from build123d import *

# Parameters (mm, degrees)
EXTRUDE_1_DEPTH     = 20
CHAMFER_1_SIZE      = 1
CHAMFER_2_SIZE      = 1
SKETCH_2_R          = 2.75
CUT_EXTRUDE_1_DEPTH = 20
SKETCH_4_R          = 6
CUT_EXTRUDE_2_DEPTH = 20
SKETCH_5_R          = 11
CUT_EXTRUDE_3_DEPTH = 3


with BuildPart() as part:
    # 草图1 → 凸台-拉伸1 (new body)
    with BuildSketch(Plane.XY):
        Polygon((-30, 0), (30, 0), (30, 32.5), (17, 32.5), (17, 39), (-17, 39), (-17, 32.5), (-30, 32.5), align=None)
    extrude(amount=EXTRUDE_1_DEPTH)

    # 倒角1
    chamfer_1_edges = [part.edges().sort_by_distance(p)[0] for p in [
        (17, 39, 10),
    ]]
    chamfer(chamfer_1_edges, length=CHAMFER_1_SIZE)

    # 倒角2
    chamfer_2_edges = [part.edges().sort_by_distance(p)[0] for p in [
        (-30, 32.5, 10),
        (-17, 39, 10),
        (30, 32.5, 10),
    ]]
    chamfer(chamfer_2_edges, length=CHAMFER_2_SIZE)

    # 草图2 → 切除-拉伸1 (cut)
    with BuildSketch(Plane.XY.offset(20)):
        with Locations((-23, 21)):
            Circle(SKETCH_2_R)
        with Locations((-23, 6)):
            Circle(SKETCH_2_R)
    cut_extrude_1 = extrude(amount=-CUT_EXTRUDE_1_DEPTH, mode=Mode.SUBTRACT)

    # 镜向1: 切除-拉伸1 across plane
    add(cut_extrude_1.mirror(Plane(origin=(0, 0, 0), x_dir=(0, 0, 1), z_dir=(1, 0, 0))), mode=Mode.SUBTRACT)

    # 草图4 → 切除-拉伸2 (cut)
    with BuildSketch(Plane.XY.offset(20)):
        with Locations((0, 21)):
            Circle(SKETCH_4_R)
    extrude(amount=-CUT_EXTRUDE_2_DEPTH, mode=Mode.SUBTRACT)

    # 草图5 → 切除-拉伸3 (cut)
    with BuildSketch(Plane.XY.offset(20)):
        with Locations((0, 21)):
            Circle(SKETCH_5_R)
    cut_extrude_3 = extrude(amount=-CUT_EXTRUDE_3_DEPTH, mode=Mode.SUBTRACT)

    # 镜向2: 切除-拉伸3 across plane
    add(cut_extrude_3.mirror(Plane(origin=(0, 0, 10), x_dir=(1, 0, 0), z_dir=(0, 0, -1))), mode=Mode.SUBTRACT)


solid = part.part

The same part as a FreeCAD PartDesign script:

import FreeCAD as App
import Part
import Sketcher
from FreeCAD import Vector


def edges_at(feature, points):
    """Names of the edges that pass closest to the given points."""
    edges = feature.Shape.Edges
    near = lambda p: min(range(len(edges)), key=lambda i: edges[i].distToShape(Part.Vertex(*p))[0])
    return sorted({f"Edge{near(p) + 1}" for p in points})

doc = App.newDocument("Part")
body = doc.addObject("PartDesign::Body", "Body")

sketch1 = doc.addObject("Sketcher::SketchObject", "Sketch")
body.addObject(sketch1)
sketch1.AttachmentSupport = (doc.XY_Plane, [""])
sketch1.MapMode = "FlatFace"
sketch1.addGeometry([
    Part.LineSegment(Vector(-30, 0, 0), Vector(30, 0, 0)),
    Part.LineSegment(Vector(30, 0, 0), Vector(30, 32.5, 0)),
    Part.LineSegment(Vector(30, 32.5, 0), Vector(17, 32.5, 0)),
    Part.LineSegment(Vector(17, 32.5, 0), Vector(17, 39, 0)),
    Part.LineSegment(Vector(17, 39, 0), Vector(-17, 39, 0)),
    Part.LineSegment(Vector(-17, 39, 0), Vector(-17, 32.5, 0)),
    Part.LineSegment(Vector(-17, 32.5, 0), Vector(-30, 32.5, 0)),
    Part.LineSegment(Vector(-30, 32.5, 0), Vector(-30, 0, 0)),
], False)
sketch1.addConstraint([
    Sketcher.Constraint("Coincident", 0, 2, 1, 1),
    Sketcher.Constraint("Coincident", 1, 2, 2, 1),
    Sketcher.Constraint("Coincident", 2, 2, 3, 1),
    Sketcher.Constraint("Coincident", 3, 2, 4, 1),
    Sketcher.Constraint("Coincident", 4, 2, 5, 1),
    Sketcher.Constraint("Coincident", 5, 2, 6, 1),
    Sketcher.Constraint("Coincident", 6, 2, 7, 1),
    Sketcher.Constraint("Coincident", 7, 2, 0, 1),
    Sketcher.Constraint("Horizontal", 0),
    Sketcher.Constraint("Vertical", 1),
    Sketcher.Constraint("Horizontal", 2),
    Sketcher.Constraint("Vertical", 3),
    Sketcher.Constraint("Horizontal", 4),
    Sketcher.Constraint("Vertical", 5),
    Sketcher.Constraint("Horizontal", 6),
    Sketcher.Constraint("Vertical", 7),
    Sketcher.Constraint("Symmetric", 0, 2, 7, 2, -1, 1),
    Sketcher.Constraint("Symmetric", 2, 2, 5, 2, -2),
    Sketcher.Constraint("DistanceX", 0, 1, 0, 2, 60.0),
    Sketcher.Constraint("DistanceX", 2, 2, 2, 1, 13.0),
    Sketcher.Constraint("DistanceY", 1, 1, 1, 2, 32.5),
    Sketcher.Constraint("DistanceY", 3, 1, 3, 2, 6.5),
])
pad1 = doc.addObject("PartDesign::Pad", "Pad")
body.addObject(pad1)
pad1.Profile = sketch1
pad1.Length = 20
doc.recompute()

chamfer = doc.addObject("PartDesign::Chamfer", "Chamfer")
body.addObject(chamfer)
chamfer.Base = (pad1, edges_at(pad1, [(17, 39, 10)]))
chamfer.Size = 1
doc.recompute()

chamfer2 = doc.addObject("PartDesign::Chamfer", "Chamfer001")
body.addObject(chamfer2)
chamfer2.Base = (chamfer, edges_at(chamfer, [(-30, 32.5, 10), (-17, 39, 10), (30, 32.5, 10)]))
chamfer2.Size = 1

sketch2 = doc.addObject("Sketcher::SketchObject", "Sketch001")
body.addObject(sketch2)
sketch2.AttachmentSupport = (doc.XY_Plane, [""])
sketch2.MapMode = "FlatFace"
sketch2.AttachmentOffset = App.Placement(Vector(0, 0, 20), App.Rotation())
sketch2.addGeometry([
    Part.Circle(Vector(-23, 21, 0), Vector(0, 0, 1), 2.75),
    Part.Circle(Vector(-23, 6, 0), Vector(0, 0, 1), 2.75),
], False)
sketch2.addConstraint([
    Sketcher.Constraint("Equal", 0, 1),
    Sketcher.Constraint("Vertical", 0, 3, 1, 3),
    Sketcher.Constraint("Diameter", 0, 5.5),
    Sketcher.Constraint("DistanceX", 0, 3, -1, 1, 23.0),
    Sketcher.Constraint("DistanceY", -1, 1, 0, 3, 21.0),
    Sketcher.Constraint("DistanceY", -1, 1, 1, 3, 6.0),
])
pocket1 = doc.addObject("PartDesign::Pocket", "Pocket")
body.addObject(pocket1)
pocket1.Profile = sketch2
pocket1.Length = 20
doc.recompute()

mirrored = doc.addObject("PartDesign::Mirrored", "Mirrored")
body.addObject(mirrored)
mirrored.Originals = [pocket1]
mirrored.MirrorPlane = (doc.YZ_Plane, [""])
body.Tip = mirrored

sketch3 = doc.addObject("Sketcher::SketchObject", "Sketch002")
body.addObject(sketch3)
sketch3.AttachmentSupport = (doc.XY_Plane, [""])
sketch3.MapMode = "FlatFace"
sketch3.AttachmentOffset = App.Placement(Vector(0, 0, 20), App.Rotation())
sketch3.addGeometry(Part.Circle(Vector(0, 21, 0), Vector(0, 0, 1), 6), False)
sketch3.addConstraint([
    Sketcher.Constraint("PointOnObject", 0, 3, -2),
    Sketcher.Constraint("Diameter", 0, 12.0),
    Sketcher.Constraint("DistanceY", -1, 1, 0, 3, 21.0),
])
pocket2 = doc.addObject("PartDesign::Pocket", "Pocket001")
body.addObject(pocket2)
pocket2.Profile = sketch3
pocket2.Length = 20

sketch4 = doc.addObject("Sketcher::SketchObject", "Sketch003")
body.addObject(sketch4)
sketch4.AttachmentSupport = (doc.XY_Plane, [""])
sketch4.MapMode = "FlatFace"
sketch4.AttachmentOffset = App.Placement(Vector(0, 0, 20), App.Rotation())
sketch4.addGeometry(Part.Circle(Vector(0, 21, 0), Vector(0, 0, 1), 11), False)
sketch4.addConstraint([
    Sketcher.Constraint("PointOnObject", 0, 3, -2),
    Sketcher.Constraint("Diameter", 0, 22.0),
    Sketcher.Constraint("DistanceY", -1, 1, 0, 3, 21.0),
])
pocket3 = doc.addObject("PartDesign::Pocket", "Pocket002")
body.addObject(pocket3)
pocket3.Profile = sketch4
pocket3.Length = 3
doc.recompute()

datumplane = doc.addObject("PartDesign::Plane", "DatumPlane")
body.addObject(datumplane)
datumplane.AttachmentSupport = (doc.XY_Plane, [""])
datumplane.MapMode = "FlatFace"
datumplane.AttachmentOffset = App.Placement(Vector(0, 0, 10), App.Rotation())
mirrored2 = doc.addObject("PartDesign::Mirrored", "Mirrored001")
body.addObject(mirrored2)
mirrored2.Originals = [pocket3]
mirrored2.MirrorPlane = (datumplane, [""])
body.Tip = mirrored2

doc.recompute()
